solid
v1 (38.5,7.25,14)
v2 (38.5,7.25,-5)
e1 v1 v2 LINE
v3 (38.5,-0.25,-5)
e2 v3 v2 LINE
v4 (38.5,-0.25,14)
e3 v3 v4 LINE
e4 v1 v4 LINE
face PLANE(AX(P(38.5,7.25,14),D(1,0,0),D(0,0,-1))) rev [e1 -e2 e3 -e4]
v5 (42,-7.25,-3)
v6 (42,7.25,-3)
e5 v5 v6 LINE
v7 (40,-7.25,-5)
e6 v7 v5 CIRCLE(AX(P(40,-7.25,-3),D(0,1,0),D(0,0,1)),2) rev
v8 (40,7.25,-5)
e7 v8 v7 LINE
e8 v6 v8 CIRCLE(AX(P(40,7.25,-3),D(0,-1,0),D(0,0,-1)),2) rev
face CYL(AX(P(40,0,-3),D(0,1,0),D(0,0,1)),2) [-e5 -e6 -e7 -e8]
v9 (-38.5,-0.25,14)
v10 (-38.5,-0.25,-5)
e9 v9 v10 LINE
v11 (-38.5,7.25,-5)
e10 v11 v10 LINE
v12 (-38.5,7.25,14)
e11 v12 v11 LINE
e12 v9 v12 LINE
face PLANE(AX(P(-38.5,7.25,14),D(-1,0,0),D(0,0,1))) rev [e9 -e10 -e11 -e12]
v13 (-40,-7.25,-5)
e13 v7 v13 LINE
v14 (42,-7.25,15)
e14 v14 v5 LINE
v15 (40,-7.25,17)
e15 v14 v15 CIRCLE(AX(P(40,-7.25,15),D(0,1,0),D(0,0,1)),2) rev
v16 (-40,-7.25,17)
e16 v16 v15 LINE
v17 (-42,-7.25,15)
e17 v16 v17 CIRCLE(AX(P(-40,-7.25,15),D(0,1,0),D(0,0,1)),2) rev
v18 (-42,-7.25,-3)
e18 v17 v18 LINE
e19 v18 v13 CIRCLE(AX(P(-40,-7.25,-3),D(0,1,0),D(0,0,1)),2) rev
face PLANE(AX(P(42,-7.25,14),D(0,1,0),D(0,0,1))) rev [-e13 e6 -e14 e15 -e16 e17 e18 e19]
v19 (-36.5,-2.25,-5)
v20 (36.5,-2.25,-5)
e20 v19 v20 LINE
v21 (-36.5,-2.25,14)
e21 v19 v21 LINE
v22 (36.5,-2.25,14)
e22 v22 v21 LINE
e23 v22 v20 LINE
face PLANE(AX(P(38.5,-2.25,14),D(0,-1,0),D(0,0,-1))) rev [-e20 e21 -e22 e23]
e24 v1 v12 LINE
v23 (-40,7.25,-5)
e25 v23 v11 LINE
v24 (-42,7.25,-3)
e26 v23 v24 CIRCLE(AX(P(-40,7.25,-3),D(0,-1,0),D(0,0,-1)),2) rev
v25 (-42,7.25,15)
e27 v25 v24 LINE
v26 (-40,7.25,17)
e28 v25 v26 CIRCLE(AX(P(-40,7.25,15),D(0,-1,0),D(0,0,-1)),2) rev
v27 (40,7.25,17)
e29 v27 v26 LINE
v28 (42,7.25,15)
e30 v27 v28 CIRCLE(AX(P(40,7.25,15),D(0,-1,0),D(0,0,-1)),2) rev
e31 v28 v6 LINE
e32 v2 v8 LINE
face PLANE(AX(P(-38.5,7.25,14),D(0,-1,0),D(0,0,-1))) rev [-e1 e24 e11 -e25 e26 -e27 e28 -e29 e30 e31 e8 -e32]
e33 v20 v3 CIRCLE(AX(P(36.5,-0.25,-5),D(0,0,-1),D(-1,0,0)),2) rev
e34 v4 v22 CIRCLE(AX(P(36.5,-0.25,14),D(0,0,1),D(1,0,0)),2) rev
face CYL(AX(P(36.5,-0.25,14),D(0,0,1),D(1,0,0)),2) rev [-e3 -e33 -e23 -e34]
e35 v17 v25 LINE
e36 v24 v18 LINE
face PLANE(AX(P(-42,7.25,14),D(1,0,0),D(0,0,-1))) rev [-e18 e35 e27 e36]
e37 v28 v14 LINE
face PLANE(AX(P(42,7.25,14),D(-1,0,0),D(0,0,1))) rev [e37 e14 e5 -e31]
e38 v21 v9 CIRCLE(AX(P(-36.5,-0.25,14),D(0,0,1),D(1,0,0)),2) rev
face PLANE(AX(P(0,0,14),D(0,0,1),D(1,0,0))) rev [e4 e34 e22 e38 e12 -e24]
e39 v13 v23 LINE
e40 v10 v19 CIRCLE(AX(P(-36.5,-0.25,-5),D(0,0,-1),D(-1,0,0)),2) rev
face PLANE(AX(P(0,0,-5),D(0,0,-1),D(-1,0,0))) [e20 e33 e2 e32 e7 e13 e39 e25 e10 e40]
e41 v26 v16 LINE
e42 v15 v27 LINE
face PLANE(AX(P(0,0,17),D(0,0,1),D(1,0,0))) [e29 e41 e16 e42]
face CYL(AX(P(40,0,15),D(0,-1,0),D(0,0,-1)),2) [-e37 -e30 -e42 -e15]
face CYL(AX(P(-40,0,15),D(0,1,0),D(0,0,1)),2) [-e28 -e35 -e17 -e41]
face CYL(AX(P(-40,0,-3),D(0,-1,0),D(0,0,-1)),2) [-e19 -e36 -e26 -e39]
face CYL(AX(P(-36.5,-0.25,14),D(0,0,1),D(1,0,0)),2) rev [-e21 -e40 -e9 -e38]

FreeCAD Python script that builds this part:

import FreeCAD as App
import Part
import Sketcher
from FreeCAD import Vector
Q = App.Units.Quantity


def edges_at(feature, points):
    """Names of the edges that pass closest to the given points."""
    edges = feature.Shape.Edges
    near = lambda p: min(range(len(edges)), key=lambda i: edges[i].distToShape(Part.Vertex(*p))[0])
    return sorted({f"Edge{near(p) + 1}" for p in points})


def add_polygon(sketch, points):
    """Adds a closed chain of lines whose ends are joined by coincident constraints."""
    first, n = sketch.GeometryCount, len(points)
    for a, b in zip(points, points[1:] + points[:1]):
        sketch.addGeometry(Part.LineSegment(App.Vector(*a, 0), App.Vector(*b, 0)), False)
    for i in range(n):
        sketch.addConstraint(Sketcher.Constraint("Coincident", first + i, 2, first + (i + 1) % n, 1))

doc = App.newDocument("Part")
body = doc.addObject("PartDesign::Body", "Body")

sketch1 = body.newObject("Sketcher::SketchObject", "Sketch")
sketch1.AttachmentSupport = (doc.getObject("XY_Plane"), [""])
sketch1.MapMode = "FlatFace"
add_polygon(sketch1, [(-38.5, 7.2), (-42, 7.2), (-42, -7.2), (42, -7.2), (42, 7.2), (38.5, 7.2), (38.5, -2.2), (-38.5, -2.2)])
sketch1.addConstraint([
    Sketcher.Constraint("Horizontal", 0),
    Sketcher.Constraint("Vertical", 1),
    Sketcher.Constraint("Horizontal", 2),
    Sketcher.Constraint("Vertical", 3),
    Sketcher.Constraint("Horizontal", 4),
    Sketcher.Constraint("Vertical", 5),
    Sketcher.Constraint("Horizontal", 6),
    Sketcher.Constraint("Vertical", 7),
    Sketcher.Constraint("Symmetric", 0, 2, 2, 2, -1, 1),
    Sketcher.Constraint("Symmetric", 4, 2, 7, 2, -2),
    Sketcher.Constraint("DistanceX", 2, 1, 2, 2, Q("84 mm")),
    Sketcher.Constraint("DistanceX", 6, 2, 6, 1, Q("77 mm")),
    Sketcher.Constraint("DistanceY", 1, 2, 1, 1, Q("14.5 mm")),
    Sketcher.Constraint("DistanceY", 5, 2, 5, 1, Q("9.5 mm")),
])
pad1 = body.newObject("PartDesign::Pad", "Pad")
pad1.Profile = sketch1
pad1.Length = 14

sketch2 = body.newObject("Sketcher::SketchObject", "Sketch001")
sketch2.AttachmentSupport = (doc.getObject("XY_Plane"), [""])
sketch2.MapMode = "FlatFace"
sketch2.AttachmentOffset = App.Placement(Vector(0, 0, 14), App.Rotation())
add_polygon(sketch2, [(-42, 7), (-42, -7), (42, -7), (42, 7)])
sketch2.addConstraint([
    Sketcher.Constraint("Vertical", 0),
    Sketcher.Constraint("Horizontal", 1),
    Sketcher.Constraint("Vertical", 2),
    Sketcher.Constraint("Horizontal", 3),
    Sketcher.Constraint("Symmetric", 0, 2, 2, 2, -1, 1),
    Sketcher.Constraint("DistanceX", 1, 1, 1, 2, Q("84 mm")),
    Sketcher.Constraint("DistanceY", 0, 2, 0, 1, Q("14.5 mm")),
])
pad2 = body.newObject("PartDesign::Pad", "Pad001")
pad2.Profile = sketch2
pad2.Length = 3

sketch3 = body.newObject("Sketcher::SketchObject", "Sketch002")
sketch3.AttachmentSupport = (doc.getObject("XY_Plane"), [""])
sketch3.MapMode = "FlatFace"
add_polygon(sketch3, [(42, 7.2), (42, -7.2), (-42, -7.2), (-42, 7.2), (-38.5, 7.2), (-38.5, -2.2), (38.5, -2.2), (38.5, 7.2)])
sketch3.addConstraint([
    Sketcher.Constraint("Vertical", 0),
    Sketcher.Constraint("Horizontal", 1),
    Sketcher.Constraint("Vertical", 2),
    Sketcher.Constraint("Horizontal", 3),
    Sketcher.Constraint("Vertical", 4),
    Sketcher.Constraint("Horizontal", 5),
    Sketcher.Constraint("Vertical", 6),
    Sketcher.Constraint("Horizontal", 7),
    Sketcher.Constraint("Symmetric", 0, 2, 2, 2, -1, 1),
    Sketcher.Constraint("Symmetric", 3, 2, 6, 2, -2),
    Sketcher.Constraint("DistanceX", 1, 2, 1, 1, Q("84 mm")),
    Sketcher.Constraint("DistanceX", 5, 1, 5, 2, Q("77 mm")),
    Sketcher.Constraint("DistanceY", 0, 2, 0, 1, Q("14.5 mm")),
    Sketcher.Constraint("DistanceY", 4, 2, 4, 1, Q("9.5 mm")),
])
pad3 = body.newObject("PartDesign::Pad", "Pad002")
pad3.Profile = sketch3
pad3.Length = 5
pad3.Reversed = True
doc.recompute()

fillet = body.newObject("PartDesign::Fillet", "Fillet")
fillet.Base = (pad3, edges_at(pad3, [
    (-38.5, -2.25, 4.5),
    (38.5, -2.25, 4.5),
    (-42, 0, 17),
    (42, 0, 17),
    (42, 0, -5),
    (-42, 0, -5),
]))
fillet.Radius = 2

doc.recompute()
